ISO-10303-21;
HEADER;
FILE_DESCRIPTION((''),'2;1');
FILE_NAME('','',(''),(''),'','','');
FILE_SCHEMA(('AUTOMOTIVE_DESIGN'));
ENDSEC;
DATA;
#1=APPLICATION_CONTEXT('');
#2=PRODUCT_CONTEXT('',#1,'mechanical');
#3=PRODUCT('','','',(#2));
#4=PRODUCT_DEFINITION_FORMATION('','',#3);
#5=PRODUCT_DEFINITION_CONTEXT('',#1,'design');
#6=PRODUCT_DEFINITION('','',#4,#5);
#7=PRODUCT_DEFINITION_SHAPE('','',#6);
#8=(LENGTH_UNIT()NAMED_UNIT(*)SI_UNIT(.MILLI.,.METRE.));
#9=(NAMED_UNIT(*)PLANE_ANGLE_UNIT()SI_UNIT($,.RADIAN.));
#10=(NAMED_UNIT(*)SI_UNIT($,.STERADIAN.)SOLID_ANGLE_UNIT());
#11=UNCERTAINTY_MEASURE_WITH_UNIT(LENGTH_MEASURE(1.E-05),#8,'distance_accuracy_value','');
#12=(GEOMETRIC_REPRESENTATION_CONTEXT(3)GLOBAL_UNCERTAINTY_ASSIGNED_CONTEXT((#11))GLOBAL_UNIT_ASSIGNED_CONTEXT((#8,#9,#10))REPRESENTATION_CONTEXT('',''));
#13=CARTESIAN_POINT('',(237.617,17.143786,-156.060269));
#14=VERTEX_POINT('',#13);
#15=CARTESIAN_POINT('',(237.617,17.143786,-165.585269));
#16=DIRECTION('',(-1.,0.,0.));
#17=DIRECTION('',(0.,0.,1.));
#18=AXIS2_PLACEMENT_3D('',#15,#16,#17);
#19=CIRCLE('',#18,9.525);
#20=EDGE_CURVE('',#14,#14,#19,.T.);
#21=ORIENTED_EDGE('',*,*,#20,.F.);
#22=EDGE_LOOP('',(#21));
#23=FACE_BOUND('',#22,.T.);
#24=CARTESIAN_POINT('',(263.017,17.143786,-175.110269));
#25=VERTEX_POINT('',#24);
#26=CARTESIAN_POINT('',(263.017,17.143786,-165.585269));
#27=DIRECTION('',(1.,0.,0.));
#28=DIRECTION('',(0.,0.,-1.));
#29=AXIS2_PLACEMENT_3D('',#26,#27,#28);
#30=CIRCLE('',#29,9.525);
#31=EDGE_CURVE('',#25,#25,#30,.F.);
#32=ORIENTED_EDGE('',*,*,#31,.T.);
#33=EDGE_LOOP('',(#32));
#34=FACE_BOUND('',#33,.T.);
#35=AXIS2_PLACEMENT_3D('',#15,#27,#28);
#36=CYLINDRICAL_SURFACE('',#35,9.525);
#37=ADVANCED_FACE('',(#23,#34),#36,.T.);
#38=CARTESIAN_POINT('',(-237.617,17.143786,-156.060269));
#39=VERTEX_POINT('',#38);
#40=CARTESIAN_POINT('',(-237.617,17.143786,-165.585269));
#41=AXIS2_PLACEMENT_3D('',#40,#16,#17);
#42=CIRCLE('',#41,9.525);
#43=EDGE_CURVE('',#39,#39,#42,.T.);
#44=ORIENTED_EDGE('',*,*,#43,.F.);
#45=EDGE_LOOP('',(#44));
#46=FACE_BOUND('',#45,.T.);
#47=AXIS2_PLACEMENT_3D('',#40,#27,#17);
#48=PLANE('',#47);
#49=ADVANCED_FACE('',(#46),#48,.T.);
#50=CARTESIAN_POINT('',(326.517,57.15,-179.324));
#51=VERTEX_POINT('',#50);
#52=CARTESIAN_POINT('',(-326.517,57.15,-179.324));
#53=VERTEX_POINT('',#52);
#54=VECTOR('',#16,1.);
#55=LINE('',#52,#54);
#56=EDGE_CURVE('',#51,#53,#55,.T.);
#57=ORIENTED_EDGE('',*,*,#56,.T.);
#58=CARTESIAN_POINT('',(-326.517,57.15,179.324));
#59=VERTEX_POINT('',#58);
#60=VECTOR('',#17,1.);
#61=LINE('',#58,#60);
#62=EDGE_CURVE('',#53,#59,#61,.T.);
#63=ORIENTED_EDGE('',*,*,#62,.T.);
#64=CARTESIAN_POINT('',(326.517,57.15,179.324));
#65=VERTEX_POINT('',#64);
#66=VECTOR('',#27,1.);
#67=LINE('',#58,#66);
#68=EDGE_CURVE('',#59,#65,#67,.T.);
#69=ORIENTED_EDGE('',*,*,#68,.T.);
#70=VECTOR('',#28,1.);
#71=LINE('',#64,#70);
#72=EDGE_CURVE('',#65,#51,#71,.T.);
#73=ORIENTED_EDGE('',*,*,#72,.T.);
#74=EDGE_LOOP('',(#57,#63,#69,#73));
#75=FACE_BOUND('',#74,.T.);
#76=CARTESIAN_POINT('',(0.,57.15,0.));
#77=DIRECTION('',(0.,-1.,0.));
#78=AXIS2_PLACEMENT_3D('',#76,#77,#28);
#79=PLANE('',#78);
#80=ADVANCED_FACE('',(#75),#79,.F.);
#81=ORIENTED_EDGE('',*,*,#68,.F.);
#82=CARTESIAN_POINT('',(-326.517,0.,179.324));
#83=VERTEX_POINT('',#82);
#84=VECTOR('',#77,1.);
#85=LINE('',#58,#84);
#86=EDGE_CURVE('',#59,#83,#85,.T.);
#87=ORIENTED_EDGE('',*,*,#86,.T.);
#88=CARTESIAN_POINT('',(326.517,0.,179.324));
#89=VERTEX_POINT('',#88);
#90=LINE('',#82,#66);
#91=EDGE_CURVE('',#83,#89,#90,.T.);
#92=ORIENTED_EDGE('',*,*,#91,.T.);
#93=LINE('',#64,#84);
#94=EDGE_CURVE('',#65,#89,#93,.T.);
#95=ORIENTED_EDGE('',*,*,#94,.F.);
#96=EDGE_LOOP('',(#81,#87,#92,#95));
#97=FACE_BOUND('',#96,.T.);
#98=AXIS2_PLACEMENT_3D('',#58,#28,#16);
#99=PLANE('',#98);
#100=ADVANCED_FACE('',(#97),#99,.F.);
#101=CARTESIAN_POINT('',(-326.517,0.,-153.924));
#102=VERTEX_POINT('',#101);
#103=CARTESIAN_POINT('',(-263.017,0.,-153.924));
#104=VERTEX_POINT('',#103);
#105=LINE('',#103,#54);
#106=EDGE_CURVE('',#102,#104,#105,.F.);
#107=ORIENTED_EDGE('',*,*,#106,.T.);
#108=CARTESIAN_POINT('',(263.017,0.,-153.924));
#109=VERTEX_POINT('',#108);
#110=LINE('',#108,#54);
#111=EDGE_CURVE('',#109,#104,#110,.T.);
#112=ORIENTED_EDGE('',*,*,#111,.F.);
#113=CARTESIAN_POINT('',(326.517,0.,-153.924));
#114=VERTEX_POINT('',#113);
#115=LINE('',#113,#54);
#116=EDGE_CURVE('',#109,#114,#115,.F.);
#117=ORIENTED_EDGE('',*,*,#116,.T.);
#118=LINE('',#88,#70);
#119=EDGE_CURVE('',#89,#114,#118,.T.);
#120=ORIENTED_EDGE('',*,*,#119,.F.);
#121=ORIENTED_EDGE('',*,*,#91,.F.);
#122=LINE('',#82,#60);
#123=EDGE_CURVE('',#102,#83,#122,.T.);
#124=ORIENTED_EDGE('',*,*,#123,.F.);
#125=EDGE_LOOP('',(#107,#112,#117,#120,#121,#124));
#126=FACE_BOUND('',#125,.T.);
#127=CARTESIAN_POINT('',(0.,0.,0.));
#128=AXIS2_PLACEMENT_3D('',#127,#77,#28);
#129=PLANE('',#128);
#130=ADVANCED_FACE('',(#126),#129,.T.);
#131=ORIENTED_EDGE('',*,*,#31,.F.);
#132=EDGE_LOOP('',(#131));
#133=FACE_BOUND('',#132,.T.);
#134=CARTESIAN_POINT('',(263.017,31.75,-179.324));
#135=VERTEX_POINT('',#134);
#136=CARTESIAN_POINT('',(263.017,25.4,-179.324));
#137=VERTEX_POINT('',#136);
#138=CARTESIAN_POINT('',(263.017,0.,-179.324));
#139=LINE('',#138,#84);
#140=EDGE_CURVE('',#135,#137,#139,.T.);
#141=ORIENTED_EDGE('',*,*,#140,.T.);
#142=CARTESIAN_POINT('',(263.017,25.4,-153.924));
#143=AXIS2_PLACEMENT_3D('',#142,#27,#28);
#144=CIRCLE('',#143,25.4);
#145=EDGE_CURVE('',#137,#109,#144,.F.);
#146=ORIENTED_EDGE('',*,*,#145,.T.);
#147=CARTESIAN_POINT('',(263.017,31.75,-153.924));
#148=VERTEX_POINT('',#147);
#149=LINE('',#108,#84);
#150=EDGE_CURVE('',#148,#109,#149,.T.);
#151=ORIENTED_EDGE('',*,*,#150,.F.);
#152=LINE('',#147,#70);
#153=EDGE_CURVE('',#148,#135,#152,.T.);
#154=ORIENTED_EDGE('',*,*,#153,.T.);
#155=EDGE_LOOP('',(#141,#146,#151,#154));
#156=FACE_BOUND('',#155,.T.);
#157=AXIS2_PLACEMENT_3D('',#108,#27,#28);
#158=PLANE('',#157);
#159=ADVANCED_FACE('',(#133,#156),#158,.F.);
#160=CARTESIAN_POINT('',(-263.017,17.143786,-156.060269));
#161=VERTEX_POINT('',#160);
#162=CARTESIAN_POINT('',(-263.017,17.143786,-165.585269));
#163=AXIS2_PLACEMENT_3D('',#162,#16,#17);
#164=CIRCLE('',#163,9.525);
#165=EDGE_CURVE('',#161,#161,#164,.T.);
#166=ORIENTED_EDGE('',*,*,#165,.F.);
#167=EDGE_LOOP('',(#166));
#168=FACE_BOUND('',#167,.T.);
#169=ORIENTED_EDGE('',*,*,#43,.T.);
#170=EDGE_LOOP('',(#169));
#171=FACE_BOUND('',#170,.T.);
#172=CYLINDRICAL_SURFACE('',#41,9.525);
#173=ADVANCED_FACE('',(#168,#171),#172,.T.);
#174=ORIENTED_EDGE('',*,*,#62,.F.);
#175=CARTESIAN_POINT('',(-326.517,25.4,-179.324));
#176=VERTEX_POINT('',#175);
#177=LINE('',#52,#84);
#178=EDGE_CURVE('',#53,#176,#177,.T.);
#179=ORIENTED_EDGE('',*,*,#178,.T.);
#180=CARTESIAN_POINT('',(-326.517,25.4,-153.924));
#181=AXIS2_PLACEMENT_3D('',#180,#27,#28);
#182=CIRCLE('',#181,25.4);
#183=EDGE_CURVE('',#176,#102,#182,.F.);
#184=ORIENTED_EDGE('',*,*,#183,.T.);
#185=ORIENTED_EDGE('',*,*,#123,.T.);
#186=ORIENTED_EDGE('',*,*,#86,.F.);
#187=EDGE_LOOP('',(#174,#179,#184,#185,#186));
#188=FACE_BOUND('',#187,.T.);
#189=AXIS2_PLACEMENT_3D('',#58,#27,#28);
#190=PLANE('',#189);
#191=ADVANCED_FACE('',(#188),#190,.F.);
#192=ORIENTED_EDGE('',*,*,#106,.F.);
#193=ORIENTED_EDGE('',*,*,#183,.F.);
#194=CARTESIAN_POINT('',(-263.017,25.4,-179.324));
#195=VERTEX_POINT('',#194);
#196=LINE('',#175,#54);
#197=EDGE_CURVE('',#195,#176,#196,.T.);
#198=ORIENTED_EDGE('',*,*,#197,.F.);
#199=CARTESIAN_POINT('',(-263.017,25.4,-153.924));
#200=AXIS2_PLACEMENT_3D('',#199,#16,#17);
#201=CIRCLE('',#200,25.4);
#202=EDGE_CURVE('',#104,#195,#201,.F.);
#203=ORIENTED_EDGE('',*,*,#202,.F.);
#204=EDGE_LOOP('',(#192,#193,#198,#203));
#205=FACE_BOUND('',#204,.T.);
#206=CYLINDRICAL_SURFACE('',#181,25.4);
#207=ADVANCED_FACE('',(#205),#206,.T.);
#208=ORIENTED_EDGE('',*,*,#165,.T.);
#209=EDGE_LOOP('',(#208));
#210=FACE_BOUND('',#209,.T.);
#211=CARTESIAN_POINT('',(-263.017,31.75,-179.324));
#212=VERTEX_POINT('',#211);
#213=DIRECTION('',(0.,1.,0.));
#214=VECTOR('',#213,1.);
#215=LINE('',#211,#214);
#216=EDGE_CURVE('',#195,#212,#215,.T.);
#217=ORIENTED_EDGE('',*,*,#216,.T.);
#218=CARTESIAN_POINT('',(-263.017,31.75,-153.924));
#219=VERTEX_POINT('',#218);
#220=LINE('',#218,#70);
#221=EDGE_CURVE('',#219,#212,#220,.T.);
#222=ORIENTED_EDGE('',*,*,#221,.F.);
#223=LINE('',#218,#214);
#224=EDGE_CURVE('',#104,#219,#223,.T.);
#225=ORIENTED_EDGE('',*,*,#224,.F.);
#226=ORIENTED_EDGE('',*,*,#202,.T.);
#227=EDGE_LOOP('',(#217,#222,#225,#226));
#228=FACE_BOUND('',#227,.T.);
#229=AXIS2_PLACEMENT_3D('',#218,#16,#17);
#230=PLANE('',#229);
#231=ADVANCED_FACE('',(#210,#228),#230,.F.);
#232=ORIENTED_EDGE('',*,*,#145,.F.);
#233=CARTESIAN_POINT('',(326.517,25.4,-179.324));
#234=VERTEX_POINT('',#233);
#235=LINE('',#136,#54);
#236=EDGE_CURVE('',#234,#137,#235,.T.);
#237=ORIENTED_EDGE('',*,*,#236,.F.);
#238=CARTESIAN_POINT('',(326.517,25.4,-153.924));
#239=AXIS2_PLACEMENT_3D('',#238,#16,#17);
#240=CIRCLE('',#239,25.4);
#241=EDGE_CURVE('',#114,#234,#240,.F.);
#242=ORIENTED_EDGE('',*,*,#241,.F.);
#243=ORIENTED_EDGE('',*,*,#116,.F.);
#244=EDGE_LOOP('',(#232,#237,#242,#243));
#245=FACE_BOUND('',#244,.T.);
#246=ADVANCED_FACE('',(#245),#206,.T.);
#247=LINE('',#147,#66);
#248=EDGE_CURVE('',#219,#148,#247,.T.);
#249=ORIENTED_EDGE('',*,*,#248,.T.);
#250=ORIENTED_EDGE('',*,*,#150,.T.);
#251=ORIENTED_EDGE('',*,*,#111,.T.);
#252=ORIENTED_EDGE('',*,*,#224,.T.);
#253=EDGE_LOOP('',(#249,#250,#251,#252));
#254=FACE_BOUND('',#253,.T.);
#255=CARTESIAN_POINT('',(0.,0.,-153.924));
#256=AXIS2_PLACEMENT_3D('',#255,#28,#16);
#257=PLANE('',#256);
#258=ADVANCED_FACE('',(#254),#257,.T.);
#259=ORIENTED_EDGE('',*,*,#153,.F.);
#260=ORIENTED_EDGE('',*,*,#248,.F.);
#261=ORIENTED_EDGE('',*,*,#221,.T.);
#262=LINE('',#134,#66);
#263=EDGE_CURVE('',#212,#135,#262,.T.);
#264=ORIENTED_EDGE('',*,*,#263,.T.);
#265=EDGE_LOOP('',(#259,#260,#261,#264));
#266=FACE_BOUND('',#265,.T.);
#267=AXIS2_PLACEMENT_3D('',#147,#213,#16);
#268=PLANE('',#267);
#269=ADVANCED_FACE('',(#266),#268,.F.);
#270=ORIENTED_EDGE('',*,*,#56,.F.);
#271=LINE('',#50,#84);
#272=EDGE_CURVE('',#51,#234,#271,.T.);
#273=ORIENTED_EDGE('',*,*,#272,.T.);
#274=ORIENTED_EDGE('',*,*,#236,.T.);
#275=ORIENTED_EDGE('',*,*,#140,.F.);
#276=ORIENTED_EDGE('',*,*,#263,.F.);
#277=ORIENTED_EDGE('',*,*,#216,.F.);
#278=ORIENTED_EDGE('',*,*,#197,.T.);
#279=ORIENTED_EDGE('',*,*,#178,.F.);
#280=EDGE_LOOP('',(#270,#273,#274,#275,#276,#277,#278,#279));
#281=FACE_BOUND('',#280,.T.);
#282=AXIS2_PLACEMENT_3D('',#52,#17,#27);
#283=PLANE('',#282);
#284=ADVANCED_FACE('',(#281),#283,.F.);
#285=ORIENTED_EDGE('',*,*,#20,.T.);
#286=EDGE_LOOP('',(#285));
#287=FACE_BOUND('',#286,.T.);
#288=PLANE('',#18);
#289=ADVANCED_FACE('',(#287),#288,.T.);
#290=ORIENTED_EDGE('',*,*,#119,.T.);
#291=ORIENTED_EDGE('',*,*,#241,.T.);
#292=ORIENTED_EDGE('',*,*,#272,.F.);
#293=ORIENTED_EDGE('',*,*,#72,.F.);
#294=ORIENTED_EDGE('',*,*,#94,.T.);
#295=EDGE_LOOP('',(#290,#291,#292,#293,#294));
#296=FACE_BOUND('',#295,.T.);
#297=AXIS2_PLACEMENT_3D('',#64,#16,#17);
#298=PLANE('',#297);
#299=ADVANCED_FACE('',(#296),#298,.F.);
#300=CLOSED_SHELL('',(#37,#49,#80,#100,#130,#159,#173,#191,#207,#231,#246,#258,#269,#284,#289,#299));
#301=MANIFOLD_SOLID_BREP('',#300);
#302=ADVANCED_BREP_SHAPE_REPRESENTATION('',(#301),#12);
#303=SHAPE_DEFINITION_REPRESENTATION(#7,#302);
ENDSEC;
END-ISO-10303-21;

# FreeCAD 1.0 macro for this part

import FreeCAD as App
import Part
import Sketcher
Q = App.Units.Quantity


def edges_at(feature, points):
    """Names of the edges that pass closest to the given points."""
    edges = feature.Shape.Edges
    near = lambda p: min(range(len(edges)), key=lambda i: edges[i].distToShape(Part.Vertex(*p))[0])
    return sorted({f"Edge{near(p) + 1}" for p in points})


def add_polygon(sketch, points):
    """Adds a closed chain of lines whose ends are joined by coincident constraints."""
    first, n = sketch.GeometryCount, len(points)
    for a, b in zip(points, points[1:] + points[:1]):
        sketch.addGeometry(Part.LineSegment(App.Vector(*a, 0), App.Vector(*b, 0)), False)
    for i in range(n):
        sketch.addConstraint(Sketcher.Constraint("Coincident", first + i, 2, first + (i + 1) % n, 1))

doc = App.newDocument("Part")
body = doc.addObject("PartDesign::Body", "Body")

# Sketch on XZ plane
sketch1 = body.newObject("Sketcher::SketchObject", "Sketch")
sketch1.AttachmentSupport = (doc.getObject("XZ_Plane"), [""])
sketch1.MapMode = "FlatFace"
add_polygon(sketch1, [(-327, -179), (-327, 179), (327, 179), (327, -179)])  # lines 0-3
sketch1.addConstraint(Sketcher.Constraint("Vertical", 0))
sketch1.addConstraint(Sketcher.Constraint("Horizontal", 1))
sketch1.addConstraint(Sketcher.Constraint("Vertical", 2))
sketch1.addConstraint(Sketcher.Constraint("Horizontal", 3))
sketch1.addConstraint(Sketcher.Constraint("Symmetric", 0, 2, 2, 2, -1, 1))
sketch1.addConstraint(Sketcher.Constraint("DistanceX", 1, 1, 1, 2, Q("25.71 in")))
sketch1.addConstraint(Sketcher.Constraint("DistanceY", 0, 1, 0, 2, Q("14.12 in")))
pad1 = body.newObject("PartDesign::Pad", "Pad")
pad1.Profile = sketch1
pad1.Length = Q("2.25 in")
pad1.Reversed = True

# Sketch on XY plane
sketch2 = body.newObject("Sketcher::SketchObject", "Sketch001")
sketch2.AttachmentSupport = (doc.getObject("XY_Plane"), [""])
sketch2.MapMode = "FlatFace"
sketch2.AttachmentOffset = App.Placement(App.Vector(0, 0, -7.06 * 25.4), App.Rotation())
add_polygon(sketch2, [(263, 32), (263, 0), (-263, 0), (-263, 32)])  # lines 0-3
sketch2.addConstraint(Sketcher.Constraint("Vertical", 0))
sketch2.addConstraint(Sketcher.Constraint("Horizontal", 1))
sketch2.addConstraint(Sketcher.Constraint("Vertical", 2))
sketch2.addConstraint(Sketcher.Constraint("Horizontal", 3))
sketch2.addConstraint(Sketcher.Constraint("Symmetric", 0, 2, 1, 2, -1, 1))
sketch2.addConstraint(Sketcher.Constraint("DistanceX", 1, 2, 1, 1, Q("20.71 in")))
sketch2.addConstraint(Sketcher.Constraint("DistanceY", 0, 2, 0, 1, Q("1.25 in")))
pocket1 = body.newObject("PartDesign::Pocket", "Pocket")
pocket1.Profile = sketch2
pocket1.Length = Q("1 in")
pocket1.Reversed = True

# Sketch on YZ plane
sketch3 = body.newObject("Sketcher::SketchObject", "Sketch002")
sketch3.AttachmentSupport = (doc.getObject("YZ_Plane"), [""])
sketch3.MapMode = "FlatFace"
sketch3.AttachmentOffset = App.Placement(App.Vector(0, 0, 10.355 * 25.4), App.Rotation())
sketch3.addGeometry(Part.Circle(App.Vector(17, -166, 0), App.Vector(0, 0, 1), 10), False)
sketch3.addConstraint(Sketcher.Constraint("Diameter", 0, Q("0.75 in")))
sketch3.addConstraint(Sketcher.Constraint("DistanceY", 0, 3, -1, 1, Q("165.585269 mm")))
sketch3.addConstraint(Sketcher.Constraint("DistanceX", -1, 1, 0, 3, Q("17.143786 mm")))
pad2 = body.newObject("PartDesign::Pad", "Pad001")
pad2.Profile = sketch3
pad2.Length = Q("1 in")
pad2.Reversed = True
doc.recompute()

mirrored = body.newObject("PartDesign::Mirrored", "Mirrored")
mirrored.Originals = [pad2]
mirrored.MirrorPlane = (doc.getObject("YZ_Plane"), [""])
body.Tip = mirrored
doc.recompute()

fillet = body.newObject("PartDesign::Fillet", "Fillet")
fillet.Base = (mirrored, edges_at(mirrored, [(-294.767, 0, -179.324), (294.767, 0, -179.324)]))
fillet.Radius = Q("1 in")

doc.recompute()
